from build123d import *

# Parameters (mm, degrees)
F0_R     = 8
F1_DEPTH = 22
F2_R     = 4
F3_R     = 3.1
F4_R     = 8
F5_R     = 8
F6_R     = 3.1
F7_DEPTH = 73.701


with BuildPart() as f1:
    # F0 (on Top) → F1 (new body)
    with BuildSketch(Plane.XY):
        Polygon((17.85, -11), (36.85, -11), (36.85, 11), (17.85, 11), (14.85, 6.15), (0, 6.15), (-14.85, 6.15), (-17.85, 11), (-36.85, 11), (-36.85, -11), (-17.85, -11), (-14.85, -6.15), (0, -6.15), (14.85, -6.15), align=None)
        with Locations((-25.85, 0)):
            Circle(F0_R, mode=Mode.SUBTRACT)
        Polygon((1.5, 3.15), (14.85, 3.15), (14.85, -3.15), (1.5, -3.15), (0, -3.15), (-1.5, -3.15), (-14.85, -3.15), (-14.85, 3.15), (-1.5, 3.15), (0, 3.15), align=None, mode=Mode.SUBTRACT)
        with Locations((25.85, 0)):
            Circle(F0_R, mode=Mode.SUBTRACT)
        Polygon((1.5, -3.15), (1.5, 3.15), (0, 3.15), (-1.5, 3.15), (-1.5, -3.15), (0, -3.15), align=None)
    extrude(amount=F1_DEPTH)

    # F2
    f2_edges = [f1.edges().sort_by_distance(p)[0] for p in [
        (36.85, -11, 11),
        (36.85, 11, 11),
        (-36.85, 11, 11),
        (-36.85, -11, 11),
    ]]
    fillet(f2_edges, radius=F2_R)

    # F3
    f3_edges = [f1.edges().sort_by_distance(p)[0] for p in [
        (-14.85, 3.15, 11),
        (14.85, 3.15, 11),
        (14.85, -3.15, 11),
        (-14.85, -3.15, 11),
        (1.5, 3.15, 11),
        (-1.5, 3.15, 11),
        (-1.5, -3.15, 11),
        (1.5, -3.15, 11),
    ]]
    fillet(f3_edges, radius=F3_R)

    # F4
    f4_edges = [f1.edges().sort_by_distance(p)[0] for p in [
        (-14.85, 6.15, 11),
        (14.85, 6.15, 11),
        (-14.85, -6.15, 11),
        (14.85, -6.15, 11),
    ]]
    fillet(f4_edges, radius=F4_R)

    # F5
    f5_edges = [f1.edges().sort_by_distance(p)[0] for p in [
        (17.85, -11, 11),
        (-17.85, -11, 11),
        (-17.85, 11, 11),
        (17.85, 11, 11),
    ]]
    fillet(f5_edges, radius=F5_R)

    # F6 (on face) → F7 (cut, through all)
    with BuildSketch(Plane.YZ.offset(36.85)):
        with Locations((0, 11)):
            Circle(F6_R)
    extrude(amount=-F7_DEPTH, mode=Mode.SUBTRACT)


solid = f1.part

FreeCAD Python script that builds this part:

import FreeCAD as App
import Part
import Sketcher
from FreeCAD import Vector
Q = App.Units.Quantity


def edges_at(feature, points):
    """Names of the edges that pass closest to the given points."""
    edges = feature.Shape.Edges
    near = lambda p: min(range(len(edges)), key=lambda i: edges[i].distToShape(Part.Vertex(*p))[0])
    return sorted({f"Edge{near(p) + 1}" for p in points})


def add_polygon(sketch, points):
    """Adds a closed chain of lines whose ends are joined by coincident constraints."""
    first, n = sketch.GeometryCount, len(points)
    for a, b in zip(points, points[1:] + points[:1]):
        sketch.addGeometry(Part.LineSegment(App.Vector(*a, 0), App.Vector(*b, 0)), False)
    for i in range(n):
        sketch.addConstraint(Sketcher.Constraint("Coincident", first + i, 2, first + (i + 1) % n, 1))

doc = App.newDocument("Part")
params = doc.addObject("Spreadsheet::Sheet", "Params")
for row, (alias, value) in enumerate([
    ("sketch1_diameter", "16 mm"),
    ("sketch1_width", "19 mm"),
    ("sketch1_height", "22 mm"),
    ("sketch1_width2", "29.7 mm"),
    ("sketch1_height2", "6.3 mm"),
    ("pad1_length", "22 mm"),
    ("fillet_radius", "4 mm"),
    ("fillet2_radius", "3.1 mm"),
    ("fillet3_radius", "8 mm"),
    ("fillet4_radius", "8 mm"),
    ("sketch2_diameter", "6.2 mm"),
], start=1):
    params.set(f"A{row}", alias)
    params.set(f"B{row}", "=" + value)
    params.setAlias(f"B{row}", alias)

body = doc.addObject("PartDesign::Body", "Body")

sketch1 = body.newObject("Sketcher::SketchObject", "Sketch")
sketch1.AttachmentSupport = (doc.getObject("XY_Plane"), [""])
sketch1.MapMode = "FlatFace"
add_polygon(sketch1, [(18, -11), (37, -11), (37, 11), (18, 11), (15, 6), (-15, 6), (-18, 11), (-37, 11), (-37, -11), (-18, -11), (-15, -6), (15, -6)])
sketch1.addGeometry(Part.Circle(Vector(-26, 0, 0), Vector(0, 0, 1), 8), False)
add_polygon(sketch1, [(-15, 3), (-2, 3), (-2, -3), (-15, -3)])
add_polygon(sketch1, [(2, 3), (15, 3), (15, -3), (2, -3)])
sketch1.addGeometry(Part.Circle(Vector(26, 0, 0), Vector(0, 0, 1), 8), False)
sketch1.addConstraint([
    Sketcher.Constraint("Horizontal", 0),
    Sketcher.Constraint("Vertical", 1),
    Sketcher.Constraint("Horizontal", 2),
    Sketcher.Constraint("Horizontal", 4),
    Sketcher.Constraint("Horizontal", 6),
    Sketcher.Constraint("Vertical", 7),
    Sketcher.Constraint("Horizontal", 8),
    Sketcher.Constraint("Horizontal", 10),
    Sketcher.Constraint("Horizontal", 13),
    Sketcher.Constraint("Vertical", 14),
    Sketcher.Constraint("Horizontal", 15),
    Sketcher.Constraint("Vertical", 16),
    Sketcher.Constraint("Horizontal", 17),
    Sketcher.Constraint("Vertical", 18),
    Sketcher.Constraint("Horizontal", 19),
    Sketcher.Constraint("Vertical", 20),
    Sketcher.Constraint("Equal", 12, 21),
    Sketcher.Constraint("Symmetric", 12, 3, 21, 3, -1, 1),
    Sketcher.Constraint("Symmetric", 0, 2, 6, 2, -1, 1),
    Sketcher.Constraint("Symmetric", 2, 2, 8, 2, -1, 1),
    Sketcher.Constraint("Symmetric", 3, 2, 9, 2, -1, 1),
    Sketcher.Constraint("Symmetric", 15, 2, 17, 2, -1, 1),
    Sketcher.Constraint("Symmetric", 13, 2, 19, 2, -1, 1),
    Sketcher.Constraint("Symmetric", 2, 2, 5, 2, -2),
    Sketcher.Constraint("PointOnObject", 12, 3, -1),
    Sketcher.Constraint("Parallel", 5, 11),
    Sketcher.Constraint("Horizontal", 16, 2, 17, 2),
    Sketcher.Constraint("Vertical", 4, 2, 9, 2),
    Sketcher.Constraint("Vertical", 3, 2, 10, 2),
    Sketcher.Constraint("Vertical", 9, 2, 15, 2),
    Sketcher.Constraint("Diameter", 12, Q("16 mm")),
    Sketcher.Constraint("DistanceX", 0, 1, 0, 2, Q("19 mm")),
    Sketcher.Constraint("DistanceY", 1, 1, 1, 2, Q("22 mm")),
    Sketcher.Constraint("DistanceX", 4, 2, 4, 1, Q("29.7 mm")),
    Sketcher.Constraint("DistanceY", 14, 2, 14, 1, Q("6.3 mm")),
    Sketcher.Constraint("DistanceX", 21, 3, 0, 2, Q("11 mm")),
    Sketcher.Constraint("DistanceX", 3, 2, 2, 2, Q("3 mm")),
    Sketcher.Constraint("DistanceY", 13, 2, 4, 2, Q("3 mm")),
    Sketcher.Constraint("DistanceX", 14, 2, 19, 2, Q("3 mm")),
])
sketch1.setExpression("Constraints[50]", "Params.sketch1_diameter")
sketch1.setExpression("Constraints[51]", "Params.sketch1_width")
sketch1.setExpression("Constraints[52]", "Params.sketch1_height")
sketch1.setExpression("Constraints[53]", "Params.sketch1_width2")
sketch1.setExpression("Constraints[54]", "Params.sketch1_height2")
pad1 = body.newObject("PartDesign::Pad", "Pad")
pad1.Profile = sketch1
pad1.setExpression("Length", "Params.pad1_length")
doc.recompute()

fillet = body.newObject("PartDesign::Fillet", "Fillet")
fillet.Base = (pad1, edges_at(pad1, [
    (36.85, -11, 11),
    (36.85, 11, 11),
    (-36.85, 11, 11),
    (-36.85, -11, 11),
]))
fillet.setExpression("Radius", "Params.fillet_radius")
doc.recompute()

fillet2 = body.newObject("PartDesign::Fillet", "Fillet001")
fillet2.Base = (fillet, edges_at(fillet, [
    (-14.85, 3.15, 11),
    (14.85, 3.15, 11),
    (14.85, -3.15, 11),
    (-14.85, -3.15, 11),
    (1.5, 3.15, 11),
    (-1.5, 3.15, 11),
    (-1.5, -3.15, 11),
    (1.5, -3.15, 11),
]))
fillet2.setExpression("Radius", "Params.fillet2_radius")
doc.recompute()

fillet3 = body.newObject("PartDesign::Fillet", "Fillet002")
fillet3.Base = (fillet2, edges_at(fillet2, [
    (-14.85, 6.15, 11),
    (14.85, 6.15, 11),
    (-14.85, -6.15, 11),
    (14.85, -6.15, 11),
]))
fillet3.setExpression("Radius", "Params.fillet3_radius")
doc.recompute()

fillet4 = body.newObject("PartDesign::Fillet", "Fillet003")
fillet4.Base = (fillet3, edges_at(fillet3, [
    (17.85, -11, 11),
    (-17.85, -11, 11),
    (-17.85, 11, 11),
    (17.85, 11, 11),
]))
fillet4.setExpression("Radius", "Params.fillet4_radius")

sketch2 = body.newObject("Sketcher::SketchObject", "Sketch001")
sketch2.AttachmentSupport = (doc.getObject("YZ_Plane"), [""])
sketch2.MapMode = "FlatFace"
sketch2.AttachmentOffset = App.Placement(Vector(0, 0, 36.85), App.Rotation())
sketch2.addGeometry(Part.Circle(Vector(0, 11, 0), Vector(0, 0, 1), 3.1), False)
sketch2.addConstraint([
    Sketcher.Constraint("PointOnObject", 0, 3, -2),
    Sketcher.Constraint("Diameter", 0, Q("6.2 mm")),
    Sketcher.Constraint("DistanceY", -1, 1, 0, 3, Q("11 mm")),
])
sketch2.setExpression("Constraints[1]", "Params.sketch2_diameter")
pocket1 = body.newObject("PartDesign::Pocket", "Pocket")
pocket1.Profile = sketch2
pocket1.Type = "ThroughAll"

doc.recompute()
